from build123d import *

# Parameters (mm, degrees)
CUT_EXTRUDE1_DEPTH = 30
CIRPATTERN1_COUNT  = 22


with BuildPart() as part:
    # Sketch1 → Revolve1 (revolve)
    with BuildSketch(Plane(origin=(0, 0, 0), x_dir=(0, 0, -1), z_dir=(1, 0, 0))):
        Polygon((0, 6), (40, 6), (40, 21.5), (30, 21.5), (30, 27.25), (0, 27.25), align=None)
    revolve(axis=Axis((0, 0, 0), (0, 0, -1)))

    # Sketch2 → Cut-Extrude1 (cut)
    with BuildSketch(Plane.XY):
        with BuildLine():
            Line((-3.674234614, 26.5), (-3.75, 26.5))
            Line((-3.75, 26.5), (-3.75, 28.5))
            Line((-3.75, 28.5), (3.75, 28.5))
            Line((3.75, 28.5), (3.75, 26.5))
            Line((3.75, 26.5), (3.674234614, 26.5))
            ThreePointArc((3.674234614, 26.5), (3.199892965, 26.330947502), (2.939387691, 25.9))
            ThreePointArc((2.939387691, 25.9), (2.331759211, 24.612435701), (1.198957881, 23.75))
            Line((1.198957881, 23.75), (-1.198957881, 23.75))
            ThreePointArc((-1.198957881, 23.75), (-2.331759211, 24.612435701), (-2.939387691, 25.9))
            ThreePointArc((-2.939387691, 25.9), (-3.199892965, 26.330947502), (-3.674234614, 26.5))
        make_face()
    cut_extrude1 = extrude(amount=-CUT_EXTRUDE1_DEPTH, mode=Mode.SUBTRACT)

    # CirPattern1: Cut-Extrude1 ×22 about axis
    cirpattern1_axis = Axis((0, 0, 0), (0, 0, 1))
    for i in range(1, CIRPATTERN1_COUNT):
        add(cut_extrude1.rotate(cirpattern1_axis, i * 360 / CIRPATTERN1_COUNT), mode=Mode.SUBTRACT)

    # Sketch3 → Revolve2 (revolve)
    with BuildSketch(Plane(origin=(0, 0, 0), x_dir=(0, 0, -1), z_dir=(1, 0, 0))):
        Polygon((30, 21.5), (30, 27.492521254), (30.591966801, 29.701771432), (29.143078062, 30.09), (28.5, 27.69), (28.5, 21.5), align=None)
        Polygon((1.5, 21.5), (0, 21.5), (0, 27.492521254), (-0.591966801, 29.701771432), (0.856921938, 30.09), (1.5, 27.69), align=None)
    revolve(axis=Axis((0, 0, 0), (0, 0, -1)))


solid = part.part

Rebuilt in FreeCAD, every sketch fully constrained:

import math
import FreeCAD as App
import Part
import Sketcher
Q = App.Units.Quantity


def add_polygon(sketch, points):
    """Adds a closed chain of lines whose ends are joined by coincident constraints."""
    first, n = sketch.GeometryCount, len(points)
    for a, b in zip(points, points[1:] + points[:1]):
        sketch.addGeometry(Part.LineSegment(App.Vector(*a, 0), App.Vector(*b, 0)), False)
    for i in range(n):
        sketch.addConstraint(Sketcher.Constraint("Coincident", first + i, 2, first + (i + 1) % n, 1))

doc = App.newDocument("Part")
body = doc.addObject("PartDesign::Body", "Body")

sketch1 = doc.addObject("Sketcher::SketchObject", "Sketch")
body.addObject(sketch1)
sketch1.AttachmentSupport = (doc.YZ_Plane, [""])
sketch1.MapMode = "FlatFace"
add_polygon(sketch1, [(6, 0), (6, -40), (22, -40), (22, -30), (27, -30), (27, 0)])
sketch1.addConstraint([
    Sketcher.Constraint("Vertical", 0),
    Sketcher.Constraint("Horizontal", 1),
    Sketcher.Constraint("Vertical", 2),
    Sketcher.Constraint("Horizontal", 3),
    Sketcher.Constraint("Vertical", 4),
    Sketcher.Constraint("Horizontal", 5),
    Sketcher.Constraint("PointOnObject", 4, 2, -1),
    Sketcher.Constraint("DistanceY", 0, 2, 0, 1, Q("40 mm")),
    Sketcher.Constraint("DistanceY", 2, 1, 2, 2, Q("10 mm")),
    Sketcher.Constraint("DistanceX", 1, 1, 1, 2, Q("15.5 mm")),
    Sketcher.Constraint("DistanceX", -1, 1, 0, 2, Q("6 mm")),
    Sketcher.Constraint("DistanceX", 3, 1, 3, 2, Q("5.75 mm")),
])
revolution = doc.addObject("PartDesign::Revolution", "Revolution")
body.addObject(revolution)
revolution.Profile = sketch1
revolution.ReferenceAxis = (sketch1, ["V_Axis"])
revolution.Angle = 360

sketch2 = doc.addObject("Sketcher::SketchObject", "Sketch001")
body.addObject(sketch2)
sketch2.AttachmentSupport = (doc.XY_Plane, [""])
sketch2.MapMode = "FlatFace"
sketch2.addGeometry([
    Part.LineSegment(App.Vector(-3.75, 26.5, 0), App.Vector(-3.67, 26.5, 0)),
    Part.ArcOfCircle(Part.Circle(App.Vector(-3.67, 25.75, 0), App.Vector(0, 0, 1), 0.75), math.radians(12), math.radians(90)),
    Part.ArcOfCircle(Part.Circle(App.Vector(0, 26.5, 0), App.Vector(0, 0, 1), 3), math.radians(-168), math.radians(-114)),
    Part.LineSegment(App.Vector(-1.2, 23.75, 0), App.Vector(1.2, 23.75, 0)),
    Part.ArcOfCircle(Part.Circle(App.Vector(0, 26.5, 0), App.Vector(0, 0, 1), 3), math.radians(-66), math.radians(-12)),
    Part.ArcOfCircle(Part.Circle(App.Vector(3.67, 25.75, 0), App.Vector(0, 0, 1), 0.75), math.radians(90), math.radians(168)),
    Part.LineSegment(App.Vector(3.67, 26.5, 0), App.Vector(3.75, 26.5, 0)),
    Part.LineSegment(App.Vector(3.75, 26.5, 0), App.Vector(3.75, 28.5, 0)),
    Part.LineSegment(App.Vector(3.75, 28.5, 0), App.Vector(-3.75, 28.5, 0)),
    Part.LineSegment(App.Vector(-3.75, 28.5, 0), App.Vector(-3.75, 26.5, 0)),
], False)
sketch2.addConstraint([
    Sketcher.Constraint("Tangent", 0, 2, 1, 2),
    Sketcher.Constraint("Tangent", 1, 1, 2, 1),
    Sketcher.Constraint("Coincident", 2, 2, 3, 1),
    Sketcher.Constraint("Coincident", 3, 2, 4, 1),
    Sketcher.Constraint("Tangent", 4, 2, 5, 2),
    Sketcher.Constraint("Tangent", 5, 1, 6, 1),
    Sketcher.Constraint("Coincident", 6, 2, 7, 1),
    Sketcher.Constraint("Coincident", 7, 2, 8, 1),
    Sketcher.Constraint("Coincident", 8, 2, 9, 1),
    Sketcher.Constraint("Coincident", 9, 2, 0, 1),
    Sketcher.Constraint("Horizontal", 0),
    Sketcher.Constraint("Horizontal", 3),
    Sketcher.Constraint("Horizontal", 6),
    Sketcher.Constraint("Vertical", 7),
    Sketcher.Constraint("Horizontal", 8),
    Sketcher.Constraint("Vertical", 9),
    Sketcher.Constraint("Coincident", 4, 3, 2, 3),
    Sketcher.Constraint("Equal", 2, 4),
    Sketcher.Constraint("Equal", 1, 5),
    Sketcher.Constraint("Symmetric", 1, 3, 5, 3, -2),
    Sketcher.Constraint("Horizontal", 4, 3, 0, 2),
    Sketcher.Constraint("Equal", 0, 6),
    Sketcher.Constraint("Radius", 2, Q("3 mm")),
    Sketcher.Constraint("DistanceY", 7, 1, 7, 2, Q("2 mm")),
    Sketcher.Constraint("Radius", 1, Q("0.75 mm")),
    Sketcher.Constraint("DistanceX", 8, 2, 8, 1, Q("7.5 mm")),
    Sketcher.Constraint("DistanceY", 2, 2, 1, 3, Q("2 mm")),
    Sketcher.Constraint("DistanceY", -1, 1, 2, 3, Q("26.5 mm")),
])
pocket1 = doc.addObject("PartDesign::Pocket", "Pocket")
body.addObject(pocket1)
pocket1.Profile = sketch2
pocket1.Length = 30
doc.recompute()

polarpattern = doc.addObject("PartDesign::PolarPattern", "PolarPattern")
body.addObject(polarpattern)
polarpattern.Originals = [pocket1]
polarpattern.Axis = (doc.Z_Axis, [""])
polarpattern.Angle = 360
polarpattern.Occurrences = 22
body.Tip = polarpattern

sketch3 = doc.addObject("Sketcher::SketchObject", "Sketch002")
body.addObject(sketch3)
sketch3.AttachmentSupport = (doc.YZ_Plane, [""])
sketch3.MapMode = "FlatFace"
add_polygon(sketch3, [(21.5, -30), (27.5, -30), (29.7, -30.6), (30.1, -29.1), (27.7, -28.5), (21.5, -28.5)])
add_polygon(sketch3, [(21.5, 0), (21.5, -1.5), (27.7, -1.5), (30.1, -0.9), (29.7, 0.6), (27.5, 0)])
sketch3.addConstraint([
    Sketcher.Constraint("Horizontal", 0),
    Sketcher.Constraint("Horizontal", 4),
    Sketcher.Constraint("Vertical", 5),
    Sketcher.Constraint("Vertical", 6),
    Sketcher.Constraint("Horizontal", 7),
    Sketcher.Constraint("Horizontal", 11),
    Sketcher.Constraint("PointOnObject", 10, 2, -1),
    Sketcher.Constraint("Perpendicular", 1, 2),
    Sketcher.Constraint("Perpendicular", 2, 3),
    Sketcher.Constraint("Perpendicular", 8, 9),
    Sketcher.Constraint("Perpendicular", 9, 10),
    Sketcher.Constraint("Vertical", 5, 2, 6, 2),
    Sketcher.Constraint("Vertical", 3, 2, 7, 2),
    Sketcher.Constraint("Vertical", 2, 2, 8, 2),
    Sketcher.Constraint("Vertical", 1, 2, 9, 2),
    Sketcher.Constraint("Vertical", 0, 2, 10, 2),
    Sketcher.Constraint("Equal", 5, 6),
    Sketcher.Constraint("Angle", 1, Q("-15 deg")),
    Sketcher.Constraint("DistanceY", 5, 2, 5, 1, Q("1.5 mm")),
    Sketcher.Constraint("DistanceY", 0, 2, -1, 1, Q("30 mm")),
    Sketcher.Constraint("Distance", 2, Q("1.5 mm")),
    Sketcher.Constraint("DistanceX", 4, 2, 4, 1, Q("6.19 mm")),
    Sketcher.Constraint("DistanceX", -1, 1, 4, 2, Q("21.5 mm")),
    Sketcher.Constraint("DistanceX", 3, 2, 2, 2, Q("2.4 mm")),
])
revolution2 = doc.addObject("PartDesign::Revolution", "Revolution001")
body.addObject(revolution2)
revolution2.Profile = sketch3
revolution2.ReferenceAxis = (sketch3, ["V_Axis"])
revolution2.Angle = 360

doc.recompute()
